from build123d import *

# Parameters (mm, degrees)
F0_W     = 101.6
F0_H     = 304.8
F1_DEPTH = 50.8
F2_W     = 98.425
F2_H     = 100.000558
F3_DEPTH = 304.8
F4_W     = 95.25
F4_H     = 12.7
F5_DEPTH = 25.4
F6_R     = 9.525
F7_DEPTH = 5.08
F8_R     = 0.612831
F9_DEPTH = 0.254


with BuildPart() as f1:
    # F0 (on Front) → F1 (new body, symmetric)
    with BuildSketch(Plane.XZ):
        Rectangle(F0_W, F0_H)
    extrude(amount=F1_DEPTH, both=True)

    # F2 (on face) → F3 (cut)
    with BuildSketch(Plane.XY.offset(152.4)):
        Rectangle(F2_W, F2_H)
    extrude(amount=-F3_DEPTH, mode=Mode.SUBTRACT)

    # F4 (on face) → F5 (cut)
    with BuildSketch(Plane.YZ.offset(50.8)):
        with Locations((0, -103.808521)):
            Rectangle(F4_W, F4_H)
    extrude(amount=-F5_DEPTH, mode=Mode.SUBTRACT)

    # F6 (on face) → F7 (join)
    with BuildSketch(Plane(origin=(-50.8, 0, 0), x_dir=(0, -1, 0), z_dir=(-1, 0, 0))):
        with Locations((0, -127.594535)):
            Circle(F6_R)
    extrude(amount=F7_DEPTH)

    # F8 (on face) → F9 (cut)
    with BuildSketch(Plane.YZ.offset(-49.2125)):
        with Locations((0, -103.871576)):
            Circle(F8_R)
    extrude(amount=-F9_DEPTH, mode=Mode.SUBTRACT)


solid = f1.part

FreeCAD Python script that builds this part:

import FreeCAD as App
import Part
import Sketcher

V = App.Vector
Q = App.Units.Quantity

doc = App.newDocument("Part")
params = doc.addObject("Spreadsheet::Sheet", "Params")
for row, (alias, value) in enumerate([
    ("sketch1_width", "4 in"),
    ("sketch1_height", "12 in"),
    ("pad1_length", "4 in"),
    ("sketch2_width", "3.875 in"),
    ("pocket1_length", "12 in"),
    ("sketch3_height", "0.5 in"),
    ("sketch3_width", "3.75 in"),
    ("pocket2_length", "1 in"),
    ("sketch4_diameter", "0.75 in"),
    ("pad2_length", "0.2 in"),
    ("pocket3_length", "0.01 in"),
], start=1):
    params.set(f"A{row}", alias)
    params.set(f"B{row}", "=" + value)
    params.setAlias(f"B{row}", alias)

body = doc.addObject("PartDesign::Body", "Body")

sketch1 = body.newObject("Sketcher::SketchObject", "Sketch")
sketch1.AttachmentSupport = (doc.getObject("XZ_Plane"), [""])
sketch1.MapMode = "FlatFace"
sketch1.addGeometry(Part.LineSegment(V(-51, 152, 0), V(-51, -152, 0)), False)
sketch1.addGeometry(Part.LineSegment(V(-51, -152, 0), V(51, -152, 0)), False)
sketch1.addGeometry(Part.LineSegment(V(51, -152, 0), V(51, 152, 0)), False)
sketch1.addGeometry(Part.LineSegment(V(51, 152, 0), V(-51, 152, 0)), False)
sketch1.addConstraint(Sketcher.Constraint("Coincident", 0, 2, 1, 1))
sketch1.addConstraint(Sketcher.Constraint("Coincident", 1, 2, 2, 1))
sketch1.addConstraint(Sketcher.Constraint("Coincident", 2, 2, 3, 1))
sketch1.addConstraint(Sketcher.Constraint("Coincident", 3, 2, 0, 1))
sketch1.addConstraint(Sketcher.Constraint("Vertical", 0))
sketch1.addConstraint(Sketcher.Constraint("Horizontal", 1))
sketch1.addConstraint(Sketcher.Constraint("Vertical", 2))
sketch1.addConstraint(Sketcher.Constraint("Horizontal", 3))
sketch1.addConstraint(Sketcher.Constraint("Symmetric", 0, 2, 2, 2, -1, 1))
sketch1.addConstraint(Sketcher.Constraint("DistanceX", 1, 1, 1, 2, Q("4 in")))
sketch1.addConstraint(Sketcher.Constraint("DistanceY", 0, 2, 0, 1, Q("12 in")))
sketch1.setExpression("Constraints[9]", "Params.sketch1_width")
sketch1.setExpression("Constraints[10]", "Params.sketch1_height")
pad1 = body.newObject("PartDesign::Pad", "Pad")
pad1.Profile = sketch1
pad1.setExpression("Length", "Params.pad1_length")
pad1.Midplane = True

sketch2 = body.newObject("Sketcher::SketchObject", "Sketch001")
sketch2.AttachmentSupport = (doc.getObject("XY_Plane"), [""])
sketch2.MapMode = "FlatFace"
sketch2.AttachmentOffset = App.Placement(V(0, 0, 6 * 25.4), App.Rotation())
sketch2.addGeometry(Part.LineSegment(V(-49, 50, 0), V(-49, -50, 0)), False)
sketch2.addGeometry(Part.LineSegment(V(-49, -50, 0), V(49, -50, 0)), False)
sketch2.addGeometry(Part.LineSegment(V(49, -50, 0), V(49, 50, 0)), False)
sketch2.addGeometry(Part.LineSegment(V(49, 50, 0), V(-49, 50, 0)), False)
sketch2.addConstraint(Sketcher.Constraint("Coincident", 0, 2, 1, 1))
sketch2.addConstraint(Sketcher.Constraint("Coincident", 1, 2, 2, 1))
sketch2.addConstraint(Sketcher.Constraint("Coincident", 2, 2, 3, 1))
sketch2.addConstraint(Sketcher.Constraint("Coincident", 3, 2, 0, 1))
sketch2.addConstraint(Sketcher.Constraint("Vertical", 0))
sketch2.addConstraint(Sketcher.Constraint("Horizontal", 1))
sketch2.addConstraint(Sketcher.Constraint("Vertical", 2))
sketch2.addConstraint(Sketcher.Constraint("Horizontal", 3))
sketch2.addConstraint(Sketcher.Constraint("Symmetric", 0, 2, 2, 2, -1, 1))
sketch2.addConstraint(Sketcher.Constraint("DistanceX", 1, 1, 1, 2, Q("3.875 in")))
sketch2.addConstraint(Sketcher.Constraint("DistanceY", 0, 2, 0, 1, Q("100.000558 mm")))
sketch2.setExpression("Constraints[9]", "Params.sketch2_width")
pocket1 = body.newObject("PartDesign::Pocket", "Pocket")
pocket1.Profile = sketch2
pocket1.setExpression("Length", "Params.pocket1_length")

sketch3 = body.newObject("Sketcher::SketchObject", "Sketch002")
sketch3.AttachmentSupport = (doc.getObject("YZ_Plane"), [""])
sketch3.MapMode = "FlatFace"
sketch3.AttachmentOffset = App.Placement(V(0, 0, 2 * 25.4), App.Rotation())
sketch3.addGeometry(Part.LineSegment(V(-48, -97, 0), V(-48, -110, 0)), False)
sketch3.addGeometry(Part.LineSegment(V(-48, -110, 0), V(48, -110, 0)), False)
sketch3.addGeometry(Part.LineSegment(V(48, -110, 0), V(48, -97, 0)), False)
sketch3.addGeometry(Part.LineSegment(V(48, -97, 0), V(-48, -97, 0)), False)
sketch3.addConstraint(Sketcher.Constraint("Coincident", 0, 2, 1, 1))
sketch3.addConstraint(Sketcher.Constraint("Coincident", 1, 2, 2, 1))
sketch3.addConstraint(Sketcher.Constraint("Coincident", 2, 2, 3, 1))
sketch3.addConstraint(Sketcher.Constraint("Coincident", 3, 2, 0, 1))
sketch3.addConstraint(Sketcher.Constraint("Vertical", 0))
sketch3.addConstraint(Sketcher.Constraint("Horizontal", 1))
sketch3.addConstraint(Sketcher.Constraint("Vertical", 2))
sketch3.addConstraint(Sketcher.Constraint("Horizontal", 3))
sketch3.addConstraint(Sketcher.Constraint("DistanceY", 0, 2, 0, 1, Q("0.5 in")))
sketch3.addConstraint(Sketcher.Constraint("DistanceX", 1, 1, 1, 2, Q("3.75 in")))
sketch3.addConstraint(Sketcher.Constraint("DistanceX", 0, 2, -1, 1, Q("1.875 in")))
sketch3.addConstraint(Sketcher.Constraint("DistanceY", 0, 2, -1, 1, Q("110.158521 mm")))
sketch3.setExpression("Constraints[8]", "Params.sketch3_height")
sketch3.setExpression("Constraints[9]", "Params.sketch3_width")
pocket2 = body.newObject("PartDesign::Pocket", "Pocket001")
pocket2.Profile = sketch3
pocket2.setExpression("Length", "Params.pocket2_length")

sketch4 = body.newObject("Sketcher::SketchObject", "Sketch003")
sketch4.AttachmentSupport = (doc.getObject("YZ_Plane"), [""])
sketch4.MapMode = "FlatFace"
sketch4.AttachmentOffset = App.Placement(V(0, 0, -2 * 25.4), App.Rotation())
sketch4.addGeometry(Part.Circle(V(0, -128, 0), V(0, 0, 1), 10), False)
sketch4.addConstraint(Sketcher.Constraint("PointOnObject", 0, 3, -2))
sketch4.addConstraint(Sketcher.Constraint("Diameter", 0, Q("0.75 in")))
sketch4.addConstraint(Sketcher.Constraint("DistanceY", 0, 3, -1, 1, Q("127.594535 mm")))
sketch4.setExpression("Constraints[1]", "Params.sketch4_diameter")
pad2 = body.newObject("PartDesign::Pad", "Pad001")
pad2.Profile = sketch4
pad2.setExpression("Length", "Params.pad2_length")
pad2.Reversed = True

sketch5 = body.newObject("Sketcher::SketchObject", "Sketch004")
sketch5.AttachmentSupport = (doc.getObject("YZ_Plane"), [""])
sketch5.MapMode = "FlatFace"
sketch5.AttachmentOffset = App.Placement(V(0, 0, -1.9375 * 25.4), App.Rotation())
sketch5.addGeometry(Part.Circle(V(0, -103.9, 0), V(0, 0, 1), 0.6), False)
sketch5.addConstraint(Sketcher.Constraint("PointOnObject", 0, 3, -2))
sketch5.addConstraint(Sketcher.Constraint("Diameter", 0, Q("1.225662 mm")))
sketch5.addConstraint(Sketcher.Constraint("DistanceY", 0, 3, -1, 1, Q("103.871576 mm")))
pocket3 = body.newObject("PartDesign::Pocket", "Pocket002")
pocket3.Profile = sketch5
pocket3.setExpression("Length", "Params.pocket3_length")

doc.recompute()
